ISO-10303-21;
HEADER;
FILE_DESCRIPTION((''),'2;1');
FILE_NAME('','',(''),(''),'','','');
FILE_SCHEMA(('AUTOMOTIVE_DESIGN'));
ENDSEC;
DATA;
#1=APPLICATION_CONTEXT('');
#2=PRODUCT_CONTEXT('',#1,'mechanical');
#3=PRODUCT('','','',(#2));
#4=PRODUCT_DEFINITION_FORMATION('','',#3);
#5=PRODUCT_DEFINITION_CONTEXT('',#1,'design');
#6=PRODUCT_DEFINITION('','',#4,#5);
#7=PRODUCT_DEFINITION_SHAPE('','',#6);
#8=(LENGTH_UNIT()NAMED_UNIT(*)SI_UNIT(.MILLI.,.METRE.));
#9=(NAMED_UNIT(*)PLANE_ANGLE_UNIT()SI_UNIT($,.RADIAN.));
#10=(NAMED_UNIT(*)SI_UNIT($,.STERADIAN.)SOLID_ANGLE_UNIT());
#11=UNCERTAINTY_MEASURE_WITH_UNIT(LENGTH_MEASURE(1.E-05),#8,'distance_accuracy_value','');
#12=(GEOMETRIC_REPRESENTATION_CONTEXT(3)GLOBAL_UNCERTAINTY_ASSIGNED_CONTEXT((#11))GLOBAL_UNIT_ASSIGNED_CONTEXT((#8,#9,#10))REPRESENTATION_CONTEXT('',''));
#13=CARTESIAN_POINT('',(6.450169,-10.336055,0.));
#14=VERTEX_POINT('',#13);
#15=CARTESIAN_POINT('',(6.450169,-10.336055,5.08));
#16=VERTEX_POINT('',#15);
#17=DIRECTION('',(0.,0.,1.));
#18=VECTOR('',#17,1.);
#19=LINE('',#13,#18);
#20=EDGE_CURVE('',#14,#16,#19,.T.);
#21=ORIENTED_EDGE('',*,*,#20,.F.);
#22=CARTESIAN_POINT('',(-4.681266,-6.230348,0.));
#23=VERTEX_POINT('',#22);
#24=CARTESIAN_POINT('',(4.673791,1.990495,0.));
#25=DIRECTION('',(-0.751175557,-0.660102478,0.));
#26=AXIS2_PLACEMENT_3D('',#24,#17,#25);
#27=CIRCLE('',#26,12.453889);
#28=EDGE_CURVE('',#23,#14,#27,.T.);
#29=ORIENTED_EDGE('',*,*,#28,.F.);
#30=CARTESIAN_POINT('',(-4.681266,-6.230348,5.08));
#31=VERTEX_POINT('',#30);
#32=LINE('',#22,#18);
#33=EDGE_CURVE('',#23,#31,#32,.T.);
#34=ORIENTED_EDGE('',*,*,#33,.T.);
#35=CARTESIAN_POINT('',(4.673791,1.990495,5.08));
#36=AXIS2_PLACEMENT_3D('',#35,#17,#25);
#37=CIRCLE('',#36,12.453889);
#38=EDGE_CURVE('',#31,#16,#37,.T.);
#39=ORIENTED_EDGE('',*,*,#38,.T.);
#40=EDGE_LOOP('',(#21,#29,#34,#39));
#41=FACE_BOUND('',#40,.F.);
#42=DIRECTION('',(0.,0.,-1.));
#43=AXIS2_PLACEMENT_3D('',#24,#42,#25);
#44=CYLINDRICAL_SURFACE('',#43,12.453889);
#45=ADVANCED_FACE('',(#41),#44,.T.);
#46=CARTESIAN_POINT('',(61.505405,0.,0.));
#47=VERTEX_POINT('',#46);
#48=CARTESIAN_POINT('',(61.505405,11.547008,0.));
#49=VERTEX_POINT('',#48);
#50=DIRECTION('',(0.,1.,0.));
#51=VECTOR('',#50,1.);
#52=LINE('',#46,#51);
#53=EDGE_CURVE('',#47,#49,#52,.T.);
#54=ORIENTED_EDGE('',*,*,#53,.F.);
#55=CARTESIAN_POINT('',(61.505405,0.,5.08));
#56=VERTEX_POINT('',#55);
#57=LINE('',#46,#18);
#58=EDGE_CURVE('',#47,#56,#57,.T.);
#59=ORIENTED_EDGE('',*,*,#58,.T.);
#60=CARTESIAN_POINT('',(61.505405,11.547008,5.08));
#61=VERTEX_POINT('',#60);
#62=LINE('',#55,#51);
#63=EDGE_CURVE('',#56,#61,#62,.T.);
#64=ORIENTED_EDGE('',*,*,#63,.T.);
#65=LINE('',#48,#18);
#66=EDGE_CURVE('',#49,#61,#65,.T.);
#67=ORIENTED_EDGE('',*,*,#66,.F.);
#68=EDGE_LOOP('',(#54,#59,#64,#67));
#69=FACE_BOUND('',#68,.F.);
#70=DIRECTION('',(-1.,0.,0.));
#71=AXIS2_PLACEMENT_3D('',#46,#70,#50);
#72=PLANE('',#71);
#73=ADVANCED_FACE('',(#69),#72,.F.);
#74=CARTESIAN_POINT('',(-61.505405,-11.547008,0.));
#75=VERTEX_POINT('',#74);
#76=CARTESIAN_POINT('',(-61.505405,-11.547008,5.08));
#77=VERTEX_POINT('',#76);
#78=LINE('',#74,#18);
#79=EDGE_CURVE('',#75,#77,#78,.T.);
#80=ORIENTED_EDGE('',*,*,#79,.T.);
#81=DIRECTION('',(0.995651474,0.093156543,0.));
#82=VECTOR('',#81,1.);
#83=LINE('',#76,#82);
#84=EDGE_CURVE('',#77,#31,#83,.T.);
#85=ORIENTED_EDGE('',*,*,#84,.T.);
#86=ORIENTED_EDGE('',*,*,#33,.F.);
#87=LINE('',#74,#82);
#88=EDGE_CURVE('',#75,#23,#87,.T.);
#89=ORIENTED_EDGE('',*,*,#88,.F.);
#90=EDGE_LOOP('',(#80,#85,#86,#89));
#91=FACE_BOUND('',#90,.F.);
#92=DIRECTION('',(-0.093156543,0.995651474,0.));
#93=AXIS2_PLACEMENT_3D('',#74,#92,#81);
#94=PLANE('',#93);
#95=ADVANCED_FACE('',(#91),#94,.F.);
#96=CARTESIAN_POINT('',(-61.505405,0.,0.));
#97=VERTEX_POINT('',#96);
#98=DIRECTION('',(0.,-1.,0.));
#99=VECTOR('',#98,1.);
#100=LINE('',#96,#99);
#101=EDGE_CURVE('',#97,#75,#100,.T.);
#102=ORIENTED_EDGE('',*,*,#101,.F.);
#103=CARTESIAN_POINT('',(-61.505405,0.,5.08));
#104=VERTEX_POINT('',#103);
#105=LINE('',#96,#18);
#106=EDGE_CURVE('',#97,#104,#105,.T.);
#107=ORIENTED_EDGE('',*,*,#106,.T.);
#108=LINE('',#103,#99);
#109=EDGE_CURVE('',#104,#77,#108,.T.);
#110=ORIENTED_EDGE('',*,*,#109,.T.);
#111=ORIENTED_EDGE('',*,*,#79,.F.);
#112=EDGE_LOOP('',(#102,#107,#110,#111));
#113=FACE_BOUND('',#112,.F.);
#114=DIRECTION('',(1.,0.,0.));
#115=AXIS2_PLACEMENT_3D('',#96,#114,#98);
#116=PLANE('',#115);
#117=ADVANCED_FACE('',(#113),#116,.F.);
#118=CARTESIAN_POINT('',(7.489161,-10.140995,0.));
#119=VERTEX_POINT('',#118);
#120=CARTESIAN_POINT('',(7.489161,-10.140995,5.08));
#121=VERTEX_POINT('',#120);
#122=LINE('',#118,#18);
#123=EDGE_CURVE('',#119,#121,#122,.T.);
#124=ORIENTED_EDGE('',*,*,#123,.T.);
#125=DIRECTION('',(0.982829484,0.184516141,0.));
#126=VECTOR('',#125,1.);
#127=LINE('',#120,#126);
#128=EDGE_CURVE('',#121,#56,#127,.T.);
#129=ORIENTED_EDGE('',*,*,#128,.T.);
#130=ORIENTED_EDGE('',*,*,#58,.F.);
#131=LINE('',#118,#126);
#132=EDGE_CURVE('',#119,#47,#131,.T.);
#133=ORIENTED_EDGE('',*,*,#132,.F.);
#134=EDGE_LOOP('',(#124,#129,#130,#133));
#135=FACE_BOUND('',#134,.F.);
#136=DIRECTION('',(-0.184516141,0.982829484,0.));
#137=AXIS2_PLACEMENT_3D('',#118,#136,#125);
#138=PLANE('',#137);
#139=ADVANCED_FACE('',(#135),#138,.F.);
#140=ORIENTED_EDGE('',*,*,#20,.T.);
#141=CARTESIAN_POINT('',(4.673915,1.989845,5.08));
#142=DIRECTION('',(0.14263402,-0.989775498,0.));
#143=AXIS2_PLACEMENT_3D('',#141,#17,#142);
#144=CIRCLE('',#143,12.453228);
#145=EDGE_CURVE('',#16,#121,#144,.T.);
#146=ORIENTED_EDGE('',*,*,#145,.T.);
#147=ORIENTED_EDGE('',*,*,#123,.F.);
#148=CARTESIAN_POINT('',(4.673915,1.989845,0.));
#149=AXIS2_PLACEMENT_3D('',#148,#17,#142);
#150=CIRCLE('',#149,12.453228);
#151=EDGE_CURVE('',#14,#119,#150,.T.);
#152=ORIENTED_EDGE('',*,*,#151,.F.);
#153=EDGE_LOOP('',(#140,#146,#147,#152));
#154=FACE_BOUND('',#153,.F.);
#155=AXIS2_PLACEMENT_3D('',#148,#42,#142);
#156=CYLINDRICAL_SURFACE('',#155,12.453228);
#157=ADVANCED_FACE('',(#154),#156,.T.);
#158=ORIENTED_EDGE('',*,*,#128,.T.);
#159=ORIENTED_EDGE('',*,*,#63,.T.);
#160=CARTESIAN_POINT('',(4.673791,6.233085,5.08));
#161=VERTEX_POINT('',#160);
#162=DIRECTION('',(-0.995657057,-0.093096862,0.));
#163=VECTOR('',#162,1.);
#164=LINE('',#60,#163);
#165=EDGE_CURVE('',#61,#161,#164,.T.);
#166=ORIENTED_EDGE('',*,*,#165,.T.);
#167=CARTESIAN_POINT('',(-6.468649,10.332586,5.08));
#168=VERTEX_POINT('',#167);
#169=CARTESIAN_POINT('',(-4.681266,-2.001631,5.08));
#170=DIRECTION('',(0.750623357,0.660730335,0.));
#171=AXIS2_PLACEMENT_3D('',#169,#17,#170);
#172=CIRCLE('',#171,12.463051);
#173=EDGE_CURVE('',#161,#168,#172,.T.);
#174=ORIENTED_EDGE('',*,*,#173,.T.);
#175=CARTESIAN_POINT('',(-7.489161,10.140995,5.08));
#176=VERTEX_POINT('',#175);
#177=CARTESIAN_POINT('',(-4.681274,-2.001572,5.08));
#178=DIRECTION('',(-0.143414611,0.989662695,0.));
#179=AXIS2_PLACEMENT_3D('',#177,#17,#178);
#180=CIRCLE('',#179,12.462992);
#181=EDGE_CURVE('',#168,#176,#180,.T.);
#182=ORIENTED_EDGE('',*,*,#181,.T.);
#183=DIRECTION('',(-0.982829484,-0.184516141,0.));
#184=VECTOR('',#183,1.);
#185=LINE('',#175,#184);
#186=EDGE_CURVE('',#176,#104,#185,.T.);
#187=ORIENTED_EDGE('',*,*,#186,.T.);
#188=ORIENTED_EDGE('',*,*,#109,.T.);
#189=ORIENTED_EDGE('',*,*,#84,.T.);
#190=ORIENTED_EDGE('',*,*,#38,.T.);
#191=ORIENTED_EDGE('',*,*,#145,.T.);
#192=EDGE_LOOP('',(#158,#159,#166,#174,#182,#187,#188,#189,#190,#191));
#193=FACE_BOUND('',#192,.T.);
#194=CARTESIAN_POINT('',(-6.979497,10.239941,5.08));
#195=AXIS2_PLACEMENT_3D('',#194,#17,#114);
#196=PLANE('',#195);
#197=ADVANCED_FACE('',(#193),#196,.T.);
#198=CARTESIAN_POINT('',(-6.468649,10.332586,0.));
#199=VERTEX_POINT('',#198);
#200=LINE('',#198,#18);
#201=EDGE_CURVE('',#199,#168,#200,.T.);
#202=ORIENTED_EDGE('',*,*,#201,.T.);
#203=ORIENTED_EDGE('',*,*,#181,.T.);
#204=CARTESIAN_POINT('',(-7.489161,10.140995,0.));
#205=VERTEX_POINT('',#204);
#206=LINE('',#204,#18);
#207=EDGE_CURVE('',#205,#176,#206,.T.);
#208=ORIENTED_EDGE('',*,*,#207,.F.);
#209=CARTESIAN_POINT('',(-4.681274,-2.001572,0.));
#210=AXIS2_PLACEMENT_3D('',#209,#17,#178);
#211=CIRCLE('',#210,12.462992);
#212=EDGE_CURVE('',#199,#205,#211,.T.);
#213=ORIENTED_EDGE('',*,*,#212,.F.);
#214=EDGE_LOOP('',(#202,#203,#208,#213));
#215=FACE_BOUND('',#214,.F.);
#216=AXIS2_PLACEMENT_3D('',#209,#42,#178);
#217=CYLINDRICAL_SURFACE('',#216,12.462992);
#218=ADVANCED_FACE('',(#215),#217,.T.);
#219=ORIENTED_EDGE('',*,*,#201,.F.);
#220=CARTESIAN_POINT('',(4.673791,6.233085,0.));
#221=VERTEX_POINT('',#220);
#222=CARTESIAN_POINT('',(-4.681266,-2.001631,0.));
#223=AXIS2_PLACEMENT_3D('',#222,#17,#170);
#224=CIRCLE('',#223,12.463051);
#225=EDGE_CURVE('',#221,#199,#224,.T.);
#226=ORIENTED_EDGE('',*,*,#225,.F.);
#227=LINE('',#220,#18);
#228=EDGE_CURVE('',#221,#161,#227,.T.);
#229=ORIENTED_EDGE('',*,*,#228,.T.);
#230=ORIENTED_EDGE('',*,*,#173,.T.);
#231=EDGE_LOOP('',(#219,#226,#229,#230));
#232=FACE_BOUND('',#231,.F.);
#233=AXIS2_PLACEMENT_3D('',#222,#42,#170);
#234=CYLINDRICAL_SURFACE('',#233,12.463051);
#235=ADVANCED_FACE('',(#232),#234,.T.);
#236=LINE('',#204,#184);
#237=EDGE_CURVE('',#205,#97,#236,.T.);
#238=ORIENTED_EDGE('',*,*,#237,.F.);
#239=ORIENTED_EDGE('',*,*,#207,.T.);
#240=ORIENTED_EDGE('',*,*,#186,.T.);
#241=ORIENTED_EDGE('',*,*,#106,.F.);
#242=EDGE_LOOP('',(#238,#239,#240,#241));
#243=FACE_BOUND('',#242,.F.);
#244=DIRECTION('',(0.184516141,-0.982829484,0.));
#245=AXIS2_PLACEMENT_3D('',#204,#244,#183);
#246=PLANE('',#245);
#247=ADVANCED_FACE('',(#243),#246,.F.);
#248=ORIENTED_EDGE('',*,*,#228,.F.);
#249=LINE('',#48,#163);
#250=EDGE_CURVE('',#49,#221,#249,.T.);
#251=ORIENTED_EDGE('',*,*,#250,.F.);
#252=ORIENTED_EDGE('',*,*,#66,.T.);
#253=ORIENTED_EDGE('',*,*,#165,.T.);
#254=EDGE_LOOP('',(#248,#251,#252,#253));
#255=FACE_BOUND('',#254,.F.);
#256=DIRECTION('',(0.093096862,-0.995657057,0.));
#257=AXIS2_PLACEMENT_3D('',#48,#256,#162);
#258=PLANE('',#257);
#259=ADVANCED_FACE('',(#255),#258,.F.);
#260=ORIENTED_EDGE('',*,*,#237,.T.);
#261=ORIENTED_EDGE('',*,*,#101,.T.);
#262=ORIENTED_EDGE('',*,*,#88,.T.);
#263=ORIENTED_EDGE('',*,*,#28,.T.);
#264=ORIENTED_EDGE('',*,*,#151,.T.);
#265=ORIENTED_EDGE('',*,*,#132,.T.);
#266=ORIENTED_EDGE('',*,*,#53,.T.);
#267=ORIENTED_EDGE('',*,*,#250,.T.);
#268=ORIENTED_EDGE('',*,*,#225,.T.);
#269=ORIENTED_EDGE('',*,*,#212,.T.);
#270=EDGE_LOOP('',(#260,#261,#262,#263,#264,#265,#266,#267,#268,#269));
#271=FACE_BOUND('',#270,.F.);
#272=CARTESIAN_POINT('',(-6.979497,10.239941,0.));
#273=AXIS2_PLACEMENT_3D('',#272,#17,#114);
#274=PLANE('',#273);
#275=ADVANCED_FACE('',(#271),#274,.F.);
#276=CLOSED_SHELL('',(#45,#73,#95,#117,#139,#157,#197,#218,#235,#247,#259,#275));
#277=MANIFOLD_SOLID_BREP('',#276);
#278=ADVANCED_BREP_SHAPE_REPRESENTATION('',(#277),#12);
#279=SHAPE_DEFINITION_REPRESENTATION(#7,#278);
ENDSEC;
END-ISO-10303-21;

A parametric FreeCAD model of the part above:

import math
import FreeCAD as App
import Part
import Sketcher

V = App.Vector
Q = App.Units.Quantity

doc = App.newDocument("Part")
body = doc.addObject("PartDesign::Body", "Body")

# Sketch on XY plane
sketch1 = doc.addObject("Sketcher::SketchObject", "Sketch")
body.addObject(sketch1)
sketch1.AttachmentSupport = (doc.XY_Plane, [""])
sketch1.MapMode = "FlatFace"
sketch1.addGeometry(Part.ArcOfCircle(Part.Circle(V(-4.7, -2, 0), V(0, 0, 1), 12.5), math.radians(98.25), math.radians(103.02)), False)
sketch1.addGeometry(Part.LineSegment(V(-7.5, 10.1, 0), V(-61.5, 0, 0)), False)
sketch1.addGeometry(Part.LineSegment(V(-61.5, 0, 0), V(-61.5, -11.5, 0)), False)
sketch1.addGeometry(Part.LineSegment(V(-61.5, -11.5, 0), V(-4.7, -6.2, 0)), False)
sketch1.addGeometry(Part.ArcOfCircle(Part.Circle(V(4.7, 2, 0), V(0, 0, 1), 12.5), math.radians(-139), math.radians(-82)), False)
sketch1.addGeometry(Part.ArcOfCircle(Part.Circle(V(4.7, 2, 0), V(0, 0, 1), 12.5), math.radians(-81.8), math.radians(-76.93)), False)
sketch1.addGeometry(Part.LineSegment(V(7.5, -10.1, 0), V(61.5, 0, 0)), False)
sketch1.addGeometry(Part.LineSegment(V(61.5, 0, 0), V(61.5, 11.5, 0)), False)
sketch1.addGeometry(Part.LineSegment(V(61.5, 11.5, 0), V(4.7, 6.2, 0)), False)
sketch1.addGeometry(Part.ArcOfCircle(Part.Circle(V(-4.7, -2, 0), V(0, 0, 1), 12.5), math.radians(41), math.radians(98)), False)
sketch1.addConstraint(Sketcher.Constraint("Coincident", 0, 2, 1, 1))
sketch1.addConstraint(Sketcher.Constraint("Coincident", 1, 2, 2, 1))
sketch1.addConstraint(Sketcher.Constraint("Coincident", 2, 2, 3, 1))
sketch1.addConstraint(Sketcher.Constraint("Coincident", 3, 2, 4, 1))
sketch1.addConstraint(Sketcher.Constraint("Coincident", 4, 2, 5, 1))
sketch1.addConstraint(Sketcher.Constraint("Coincident", 5, 2, 6, 1))
sketch1.addConstraint(Sketcher.Constraint("Coincident", 6, 2, 7, 1))
sketch1.addConstraint(Sketcher.Constraint("Coincident", 7, 2, 8, 1))
sketch1.addConstraint(Sketcher.Constraint("Coincident", 8, 2, 9, 1))
sketch1.addConstraint(Sketcher.Constraint("Tangent", 9, 2, 0, 1))
sketch1.addConstraint(Sketcher.Constraint("Vertical", 2))
sketch1.addConstraint(Sketcher.Constraint("Vertical", 7))
sketch1.addConstraint(Sketcher.Constraint("Symmetric", 0, 2, 5, 2, -1, 1))
sketch1.addConstraint(Sketcher.Constraint("Symmetric", 1, 2, 6, 2, -1, 1))
sketch1.addConstraint(Sketcher.Constraint("PointOnObject", 1, 2, -1))
sketch1.addConstraint(Sketcher.Constraint("Vertical", 9, 3, 3, 2))
sketch1.addConstraint(Sketcher.Constraint("Vertical", 4, 3, 8, 2))
sketch1.addConstraint(Sketcher.Constraint("Equal", 2, 7))
sketch1.addConstraint(Sketcher.Constraint("Radius", 4, 12.453889))
sketch1.addConstraint(Sketcher.Constraint("Radius", 5, 12.453228))
sketch1.addConstraint(Sketcher.Constraint("Radius", 9, 12.463051))
sketch1.addConstraint(Sketcher.Constraint("Radius", 0, 12.462992))
sketch1.addConstraint(Sketcher.Constraint("DistanceY", 4, 3, 0, 2, 8.1505))
sketch1.addConstraint(Sketcher.Constraint("DistanceY", 4, 2, 5, 3, 12.3259))
sketch1.addConstraint(Sketcher.Constraint("DistanceY", 8, 2, 9, 2, 4.099501))
sketch1.addConstraint(Sketcher.Constraint("Distance", 3, 57.072319))
sketch1.addConstraint(Sketcher.Constraint("DistanceY", 2, 2, 2, 1, 11.547008))
sketch1.addConstraint(Sketcher.Constraint("DistanceX", -1, 1, 4, 3, 4.673791))
sketch1.addConstraint(Sketcher.Constraint("DistanceY", 9, 3, -1, 1, 2.001631))
sketch1.addConstraint(Sketcher.Constraint("DistanceX", 0, 2, -1, 1, 7.489161))
sketch1.addConstraint(Sketcher.Constraint("DistanceY", 3, 2, -1, 1, 6.230348))
pad1 = doc.addObject("PartDesign::Pad", "Pad")
body.addObject(pad1)
pad1.Profile = sketch1
pad1.Length = Q("0.2 in")

doc.recompute()
